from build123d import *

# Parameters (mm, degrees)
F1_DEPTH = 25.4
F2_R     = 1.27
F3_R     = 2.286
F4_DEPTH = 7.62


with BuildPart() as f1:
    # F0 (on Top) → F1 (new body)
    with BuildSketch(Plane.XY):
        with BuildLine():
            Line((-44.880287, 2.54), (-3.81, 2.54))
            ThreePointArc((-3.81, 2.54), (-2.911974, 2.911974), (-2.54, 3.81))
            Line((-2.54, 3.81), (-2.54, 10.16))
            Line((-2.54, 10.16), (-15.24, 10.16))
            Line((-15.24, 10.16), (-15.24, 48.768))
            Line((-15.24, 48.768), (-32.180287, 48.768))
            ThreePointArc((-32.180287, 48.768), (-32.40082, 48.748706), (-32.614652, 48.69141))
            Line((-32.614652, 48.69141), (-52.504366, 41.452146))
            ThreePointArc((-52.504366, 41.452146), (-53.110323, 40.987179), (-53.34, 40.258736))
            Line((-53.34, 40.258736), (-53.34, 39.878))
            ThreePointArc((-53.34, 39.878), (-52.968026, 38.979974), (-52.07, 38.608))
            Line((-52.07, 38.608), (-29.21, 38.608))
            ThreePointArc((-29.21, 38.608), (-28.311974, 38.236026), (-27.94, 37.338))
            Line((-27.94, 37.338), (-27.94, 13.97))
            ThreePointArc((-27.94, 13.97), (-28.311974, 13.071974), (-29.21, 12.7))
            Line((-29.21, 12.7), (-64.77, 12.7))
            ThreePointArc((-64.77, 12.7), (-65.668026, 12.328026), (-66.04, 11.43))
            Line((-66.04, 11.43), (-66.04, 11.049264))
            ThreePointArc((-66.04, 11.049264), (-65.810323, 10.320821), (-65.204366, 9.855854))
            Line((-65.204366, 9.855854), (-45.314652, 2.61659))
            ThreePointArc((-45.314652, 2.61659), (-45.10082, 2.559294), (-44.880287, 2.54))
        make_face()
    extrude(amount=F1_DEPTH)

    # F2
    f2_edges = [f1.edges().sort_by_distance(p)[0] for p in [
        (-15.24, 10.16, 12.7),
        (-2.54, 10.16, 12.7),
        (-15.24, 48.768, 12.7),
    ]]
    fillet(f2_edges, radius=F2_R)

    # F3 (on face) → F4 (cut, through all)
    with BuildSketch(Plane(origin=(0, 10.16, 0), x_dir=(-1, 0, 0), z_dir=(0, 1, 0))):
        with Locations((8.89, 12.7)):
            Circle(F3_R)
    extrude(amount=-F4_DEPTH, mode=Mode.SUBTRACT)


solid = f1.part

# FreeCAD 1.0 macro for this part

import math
import FreeCAD as App
import Part
import Sketcher
Q = App.Units.Quantity


def edges_at(feature, points):
    """Names of the edges that pass closest to the given points."""
    edges = feature.Shape.Edges
    near = lambda p: min(range(len(edges)), key=lambda i: edges[i].distToShape(Part.Vertex(*p))[0])
    return sorted({f"Edge{near(p) + 1}" for p in points})

doc = App.newDocument("Part")
body = doc.addObject("PartDesign::Body", "Body")

sketch1 = doc.addObject("Sketcher::SketchObject", "Sketch")
body.addObject(sketch1)
sketch1.AttachmentSupport = (doc.XY_Plane, [""])
sketch1.MapMode = "FlatFace"
sketch1.addGeometry([
    Part.LineSegment(App.Vector(-44.88, 2.54, 0), App.Vector(-3.81, 2.54, 0)),
    Part.ArcOfCircle(Part.Circle(App.Vector(-3.81, 3.81, 0), App.Vector(0, 0, 1), 1.27), math.radians(-90), math.radians(0)),
    Part.LineSegment(App.Vector(-2.54, 3.81, 0), App.Vector(-2.54, 10.16, 0)),
    Part.LineSegment(App.Vector(-2.54, 10.16, 0), App.Vector(-15.24, 10.16, 0)),
    Part.LineSegment(App.Vector(-15.24, 10.16, 0), App.Vector(-15.24, 48.77, 0)),
    Part.LineSegment(App.Vector(-15.24, 48.77, 0), App.Vector(-32.18, 48.77, 0)),
    Part.ArcOfCircle(Part.Circle(App.Vector(-32.18, 47.5, 0), App.Vector(0, 0, 1), 1.27), math.radians(90), math.radians(110)),
    Part.LineSegment(App.Vector(-32.61, 48.69, 0), App.Vector(-52.5, 41.45, 0)),
    Part.ArcOfCircle(Part.Circle(App.Vector(-52.07, 40.26, 0), App.Vector(0, 0, 1), 1.27), math.radians(110), math.radians(180)),
    Part.LineSegment(App.Vector(-53.34, 40.26, 0), App.Vector(-53.34, 39.88, 0)),
    Part.ArcOfCircle(Part.Circle(App.Vector(-52.07, 39.88, 0), App.Vector(0, 0, 1), 1.27), math.radians(180), math.radians(270)),
    Part.LineSegment(App.Vector(-52.07, 38.61, 0), App.Vector(-29.21, 38.61, 0)),
    Part.ArcOfCircle(Part.Circle(App.Vector(-29.21, 37.34, 0), App.Vector(0, 0, 1), 1.27), math.radians(0), math.radians(90)),
    Part.LineSegment(App.Vector(-27.94, 37.34, 0), App.Vector(-27.94, 13.97, 0)),
    Part.ArcOfCircle(Part.Circle(App.Vector(-29.21, 13.97, 0), App.Vector(0, 0, 1), 1.27), math.radians(-90), math.radians(0)),
    Part.LineSegment(App.Vector(-29.21, 12.7, 0), App.Vector(-64.77, 12.7, 0)),
    Part.ArcOfCircle(Part.Circle(App.Vector(-64.77, 11.43, 0), App.Vector(0, 0, 1), 1.27), math.radians(90), math.radians(180)),
    Part.LineSegment(App.Vector(-66.04, 11.43, 0), App.Vector(-66.04, 11.05, 0)),
    Part.ArcOfCircle(Part.Circle(App.Vector(-64.77, 11.05, 0), App.Vector(0, 0, 1), 1.27), math.radians(180), math.radians(250)),
    Part.LineSegment(App.Vector(-65.2, 9.86, 0), App.Vector(-45.31, 2.62, 0)),
    Part.ArcOfCircle(Part.Circle(App.Vector(-44.88, 3.81, 0), App.Vector(0, 0, 1), 1.27), math.radians(-110), math.radians(-90)),
], False)
sketch1.addConstraint([
    Sketcher.Constraint("Tangent", 0, 2, 1, 1),
    Sketcher.Constraint("Tangent", 1, 2, 2, 1),
    Sketcher.Constraint("Coincident", 2, 2, 3, 1),
    Sketcher.Constraint("Coincident", 3, 2, 4, 1),
    Sketcher.Constraint("Coincident", 4, 2, 5, 1),
    Sketcher.Constraint("Tangent", 5, 2, 6, 1),
    Sketcher.Constraint("Tangent", 6, 2, 7, 1),
    Sketcher.Constraint("Tangent", 7, 2, 8, 1),
    Sketcher.Constraint("Tangent", 8, 2, 9, 1),
    Sketcher.Constraint("Tangent", 9, 2, 10, 1),
    Sketcher.Constraint("Tangent", 10, 2, 11, 1),
    Sketcher.Constraint("Tangent", 11, 2, 12, 2),
    Sketcher.Constraint("Tangent", 12, 1, 13, 1),
    Sketcher.Constraint("Tangent", 13, 2, 14, 2),
    Sketcher.Constraint("Tangent", 14, 1, 15, 1),
    Sketcher.Constraint("Tangent", 15, 2, 16, 1),
    Sketcher.Constraint("Tangent", 16, 2, 17, 1),
    Sketcher.Constraint("Tangent", 17, 2, 18, 1),
    Sketcher.Constraint("Tangent", 18, 2, 19, 1),
    Sketcher.Constraint("Tangent", 19, 2, 20, 1),
    Sketcher.Constraint("Tangent", 20, 2, 0, 1),
    Sketcher.Constraint("Horizontal", 0),
    Sketcher.Constraint("Vertical", 2),
    Sketcher.Constraint("Horizontal", 3),
    Sketcher.Constraint("Vertical", 4),
    Sketcher.Constraint("Horizontal", 5),
    Sketcher.Constraint("Vertical", 9),
    Sketcher.Constraint("Horizontal", 11),
    Sketcher.Constraint("Vertical", 13),
    Sketcher.Constraint("Horizontal", 15),
    Sketcher.Constraint("Vertical", 17),
    Sketcher.Constraint("Equal", 1, 6),
    Sketcher.Constraint("Equal", 1, 8),
    Sketcher.Constraint("Equal", 8, 10),
    Sketcher.Constraint("Equal", 10, 12),
    Sketcher.Constraint("Equal", 12, 14),
    Sketcher.Constraint("Equal", 14, 16),
    Sketcher.Constraint("Equal", 16, 18),
    Sketcher.Constraint("Equal", 16, 20),
    Sketcher.Constraint("Equal", 9, 17),
    Sketcher.Constraint("Equal", 7, 19),
    Sketcher.Constraint("Radius", 1, Q("0.0499999 in")),
    Sketcher.Constraint("DistanceX", 3, 2, 3, 1, Q("0.5 in")),
    Sketcher.Constraint("DistanceX", 11, 1, 11, 2, Q("0.9 in")),
    Sketcher.Constraint("DistanceX", 15, 2, 15, 1, Q("1.4 in")),
    Sketcher.Constraint("Angle", 7, Q("-160 deg")),
    Sketcher.Constraint("Angle", 19, Q("-20 deg")),
    Sketcher.Constraint("DistanceX", 12, 3, 1, 3, Q("1 in")),
    Sketcher.Constraint("DistanceY", 2, 1, 2, 2, Q("0.25 in")),
    Sketcher.Constraint("DistanceY", 4, 1, 4, 2, Q("1.52 in")),
    Sketcher.Constraint("DistanceY", 13, 2, 13, 1, Q("0.92 in")),
    Sketcher.Constraint("DistanceY", -1, 1, 0, 2, Q("0.1 in")),
    Sketcher.Constraint("DistanceX", 1, 2, -1, 1, Q("0.1 in")),
    Sketcher.Constraint("Distance", 7, Q("21.166192 mm")),
])
pad1 = doc.addObject("PartDesign::Pad", "Pad")
body.addObject(pad1)
pad1.Profile = sketch1
pad1.Length = Q("1 in")
doc.recompute()

fillet = doc.addObject("PartDesign::Fillet", "Fillet")
body.addObject(fillet)
fillet.Base = (pad1, edges_at(pad1, [(-15.24, 10.16, 12.7), (-2.54, 10.16, 12.7), (-15.24, 48.768, 12.7)]))
fillet.Radius = Q("0.05 in")

sketch2 = doc.addObject("Sketcher::SketchObject", "Sketch001")
body.addObject(sketch2)
sketch2.AttachmentSupport = (doc.XZ_Plane, [""])
sketch2.MapMode = "FlatFace"
sketch2.AttachmentOffset = App.Placement(App.Vector(0, 0, -0.4 * 25.4), App.Rotation())
sketch2.addGeometry(Part.Circle(App.Vector(-8.9, 12.7, 0), App.Vector(0, 0, 1), 2.3), False)
sketch2.addConstraint([
    Sketcher.Constraint("Diameter", 0, Q("0.18 in")),
    Sketcher.Constraint("DistanceY", -1, 1, 0, 3, Q("0.5 in")),
    Sketcher.Constraint("DistanceX", 0, 3, -1, 1, Q("0.35 in")),
])
pocket1 = doc.addObject("PartDesign::Pocket", "Pocket")
body.addObject(pocket1)
pocket1.Profile = sketch2
pocket1.Type = "ThroughAll"
pocket1.Reversed = True

doc.recompute()
